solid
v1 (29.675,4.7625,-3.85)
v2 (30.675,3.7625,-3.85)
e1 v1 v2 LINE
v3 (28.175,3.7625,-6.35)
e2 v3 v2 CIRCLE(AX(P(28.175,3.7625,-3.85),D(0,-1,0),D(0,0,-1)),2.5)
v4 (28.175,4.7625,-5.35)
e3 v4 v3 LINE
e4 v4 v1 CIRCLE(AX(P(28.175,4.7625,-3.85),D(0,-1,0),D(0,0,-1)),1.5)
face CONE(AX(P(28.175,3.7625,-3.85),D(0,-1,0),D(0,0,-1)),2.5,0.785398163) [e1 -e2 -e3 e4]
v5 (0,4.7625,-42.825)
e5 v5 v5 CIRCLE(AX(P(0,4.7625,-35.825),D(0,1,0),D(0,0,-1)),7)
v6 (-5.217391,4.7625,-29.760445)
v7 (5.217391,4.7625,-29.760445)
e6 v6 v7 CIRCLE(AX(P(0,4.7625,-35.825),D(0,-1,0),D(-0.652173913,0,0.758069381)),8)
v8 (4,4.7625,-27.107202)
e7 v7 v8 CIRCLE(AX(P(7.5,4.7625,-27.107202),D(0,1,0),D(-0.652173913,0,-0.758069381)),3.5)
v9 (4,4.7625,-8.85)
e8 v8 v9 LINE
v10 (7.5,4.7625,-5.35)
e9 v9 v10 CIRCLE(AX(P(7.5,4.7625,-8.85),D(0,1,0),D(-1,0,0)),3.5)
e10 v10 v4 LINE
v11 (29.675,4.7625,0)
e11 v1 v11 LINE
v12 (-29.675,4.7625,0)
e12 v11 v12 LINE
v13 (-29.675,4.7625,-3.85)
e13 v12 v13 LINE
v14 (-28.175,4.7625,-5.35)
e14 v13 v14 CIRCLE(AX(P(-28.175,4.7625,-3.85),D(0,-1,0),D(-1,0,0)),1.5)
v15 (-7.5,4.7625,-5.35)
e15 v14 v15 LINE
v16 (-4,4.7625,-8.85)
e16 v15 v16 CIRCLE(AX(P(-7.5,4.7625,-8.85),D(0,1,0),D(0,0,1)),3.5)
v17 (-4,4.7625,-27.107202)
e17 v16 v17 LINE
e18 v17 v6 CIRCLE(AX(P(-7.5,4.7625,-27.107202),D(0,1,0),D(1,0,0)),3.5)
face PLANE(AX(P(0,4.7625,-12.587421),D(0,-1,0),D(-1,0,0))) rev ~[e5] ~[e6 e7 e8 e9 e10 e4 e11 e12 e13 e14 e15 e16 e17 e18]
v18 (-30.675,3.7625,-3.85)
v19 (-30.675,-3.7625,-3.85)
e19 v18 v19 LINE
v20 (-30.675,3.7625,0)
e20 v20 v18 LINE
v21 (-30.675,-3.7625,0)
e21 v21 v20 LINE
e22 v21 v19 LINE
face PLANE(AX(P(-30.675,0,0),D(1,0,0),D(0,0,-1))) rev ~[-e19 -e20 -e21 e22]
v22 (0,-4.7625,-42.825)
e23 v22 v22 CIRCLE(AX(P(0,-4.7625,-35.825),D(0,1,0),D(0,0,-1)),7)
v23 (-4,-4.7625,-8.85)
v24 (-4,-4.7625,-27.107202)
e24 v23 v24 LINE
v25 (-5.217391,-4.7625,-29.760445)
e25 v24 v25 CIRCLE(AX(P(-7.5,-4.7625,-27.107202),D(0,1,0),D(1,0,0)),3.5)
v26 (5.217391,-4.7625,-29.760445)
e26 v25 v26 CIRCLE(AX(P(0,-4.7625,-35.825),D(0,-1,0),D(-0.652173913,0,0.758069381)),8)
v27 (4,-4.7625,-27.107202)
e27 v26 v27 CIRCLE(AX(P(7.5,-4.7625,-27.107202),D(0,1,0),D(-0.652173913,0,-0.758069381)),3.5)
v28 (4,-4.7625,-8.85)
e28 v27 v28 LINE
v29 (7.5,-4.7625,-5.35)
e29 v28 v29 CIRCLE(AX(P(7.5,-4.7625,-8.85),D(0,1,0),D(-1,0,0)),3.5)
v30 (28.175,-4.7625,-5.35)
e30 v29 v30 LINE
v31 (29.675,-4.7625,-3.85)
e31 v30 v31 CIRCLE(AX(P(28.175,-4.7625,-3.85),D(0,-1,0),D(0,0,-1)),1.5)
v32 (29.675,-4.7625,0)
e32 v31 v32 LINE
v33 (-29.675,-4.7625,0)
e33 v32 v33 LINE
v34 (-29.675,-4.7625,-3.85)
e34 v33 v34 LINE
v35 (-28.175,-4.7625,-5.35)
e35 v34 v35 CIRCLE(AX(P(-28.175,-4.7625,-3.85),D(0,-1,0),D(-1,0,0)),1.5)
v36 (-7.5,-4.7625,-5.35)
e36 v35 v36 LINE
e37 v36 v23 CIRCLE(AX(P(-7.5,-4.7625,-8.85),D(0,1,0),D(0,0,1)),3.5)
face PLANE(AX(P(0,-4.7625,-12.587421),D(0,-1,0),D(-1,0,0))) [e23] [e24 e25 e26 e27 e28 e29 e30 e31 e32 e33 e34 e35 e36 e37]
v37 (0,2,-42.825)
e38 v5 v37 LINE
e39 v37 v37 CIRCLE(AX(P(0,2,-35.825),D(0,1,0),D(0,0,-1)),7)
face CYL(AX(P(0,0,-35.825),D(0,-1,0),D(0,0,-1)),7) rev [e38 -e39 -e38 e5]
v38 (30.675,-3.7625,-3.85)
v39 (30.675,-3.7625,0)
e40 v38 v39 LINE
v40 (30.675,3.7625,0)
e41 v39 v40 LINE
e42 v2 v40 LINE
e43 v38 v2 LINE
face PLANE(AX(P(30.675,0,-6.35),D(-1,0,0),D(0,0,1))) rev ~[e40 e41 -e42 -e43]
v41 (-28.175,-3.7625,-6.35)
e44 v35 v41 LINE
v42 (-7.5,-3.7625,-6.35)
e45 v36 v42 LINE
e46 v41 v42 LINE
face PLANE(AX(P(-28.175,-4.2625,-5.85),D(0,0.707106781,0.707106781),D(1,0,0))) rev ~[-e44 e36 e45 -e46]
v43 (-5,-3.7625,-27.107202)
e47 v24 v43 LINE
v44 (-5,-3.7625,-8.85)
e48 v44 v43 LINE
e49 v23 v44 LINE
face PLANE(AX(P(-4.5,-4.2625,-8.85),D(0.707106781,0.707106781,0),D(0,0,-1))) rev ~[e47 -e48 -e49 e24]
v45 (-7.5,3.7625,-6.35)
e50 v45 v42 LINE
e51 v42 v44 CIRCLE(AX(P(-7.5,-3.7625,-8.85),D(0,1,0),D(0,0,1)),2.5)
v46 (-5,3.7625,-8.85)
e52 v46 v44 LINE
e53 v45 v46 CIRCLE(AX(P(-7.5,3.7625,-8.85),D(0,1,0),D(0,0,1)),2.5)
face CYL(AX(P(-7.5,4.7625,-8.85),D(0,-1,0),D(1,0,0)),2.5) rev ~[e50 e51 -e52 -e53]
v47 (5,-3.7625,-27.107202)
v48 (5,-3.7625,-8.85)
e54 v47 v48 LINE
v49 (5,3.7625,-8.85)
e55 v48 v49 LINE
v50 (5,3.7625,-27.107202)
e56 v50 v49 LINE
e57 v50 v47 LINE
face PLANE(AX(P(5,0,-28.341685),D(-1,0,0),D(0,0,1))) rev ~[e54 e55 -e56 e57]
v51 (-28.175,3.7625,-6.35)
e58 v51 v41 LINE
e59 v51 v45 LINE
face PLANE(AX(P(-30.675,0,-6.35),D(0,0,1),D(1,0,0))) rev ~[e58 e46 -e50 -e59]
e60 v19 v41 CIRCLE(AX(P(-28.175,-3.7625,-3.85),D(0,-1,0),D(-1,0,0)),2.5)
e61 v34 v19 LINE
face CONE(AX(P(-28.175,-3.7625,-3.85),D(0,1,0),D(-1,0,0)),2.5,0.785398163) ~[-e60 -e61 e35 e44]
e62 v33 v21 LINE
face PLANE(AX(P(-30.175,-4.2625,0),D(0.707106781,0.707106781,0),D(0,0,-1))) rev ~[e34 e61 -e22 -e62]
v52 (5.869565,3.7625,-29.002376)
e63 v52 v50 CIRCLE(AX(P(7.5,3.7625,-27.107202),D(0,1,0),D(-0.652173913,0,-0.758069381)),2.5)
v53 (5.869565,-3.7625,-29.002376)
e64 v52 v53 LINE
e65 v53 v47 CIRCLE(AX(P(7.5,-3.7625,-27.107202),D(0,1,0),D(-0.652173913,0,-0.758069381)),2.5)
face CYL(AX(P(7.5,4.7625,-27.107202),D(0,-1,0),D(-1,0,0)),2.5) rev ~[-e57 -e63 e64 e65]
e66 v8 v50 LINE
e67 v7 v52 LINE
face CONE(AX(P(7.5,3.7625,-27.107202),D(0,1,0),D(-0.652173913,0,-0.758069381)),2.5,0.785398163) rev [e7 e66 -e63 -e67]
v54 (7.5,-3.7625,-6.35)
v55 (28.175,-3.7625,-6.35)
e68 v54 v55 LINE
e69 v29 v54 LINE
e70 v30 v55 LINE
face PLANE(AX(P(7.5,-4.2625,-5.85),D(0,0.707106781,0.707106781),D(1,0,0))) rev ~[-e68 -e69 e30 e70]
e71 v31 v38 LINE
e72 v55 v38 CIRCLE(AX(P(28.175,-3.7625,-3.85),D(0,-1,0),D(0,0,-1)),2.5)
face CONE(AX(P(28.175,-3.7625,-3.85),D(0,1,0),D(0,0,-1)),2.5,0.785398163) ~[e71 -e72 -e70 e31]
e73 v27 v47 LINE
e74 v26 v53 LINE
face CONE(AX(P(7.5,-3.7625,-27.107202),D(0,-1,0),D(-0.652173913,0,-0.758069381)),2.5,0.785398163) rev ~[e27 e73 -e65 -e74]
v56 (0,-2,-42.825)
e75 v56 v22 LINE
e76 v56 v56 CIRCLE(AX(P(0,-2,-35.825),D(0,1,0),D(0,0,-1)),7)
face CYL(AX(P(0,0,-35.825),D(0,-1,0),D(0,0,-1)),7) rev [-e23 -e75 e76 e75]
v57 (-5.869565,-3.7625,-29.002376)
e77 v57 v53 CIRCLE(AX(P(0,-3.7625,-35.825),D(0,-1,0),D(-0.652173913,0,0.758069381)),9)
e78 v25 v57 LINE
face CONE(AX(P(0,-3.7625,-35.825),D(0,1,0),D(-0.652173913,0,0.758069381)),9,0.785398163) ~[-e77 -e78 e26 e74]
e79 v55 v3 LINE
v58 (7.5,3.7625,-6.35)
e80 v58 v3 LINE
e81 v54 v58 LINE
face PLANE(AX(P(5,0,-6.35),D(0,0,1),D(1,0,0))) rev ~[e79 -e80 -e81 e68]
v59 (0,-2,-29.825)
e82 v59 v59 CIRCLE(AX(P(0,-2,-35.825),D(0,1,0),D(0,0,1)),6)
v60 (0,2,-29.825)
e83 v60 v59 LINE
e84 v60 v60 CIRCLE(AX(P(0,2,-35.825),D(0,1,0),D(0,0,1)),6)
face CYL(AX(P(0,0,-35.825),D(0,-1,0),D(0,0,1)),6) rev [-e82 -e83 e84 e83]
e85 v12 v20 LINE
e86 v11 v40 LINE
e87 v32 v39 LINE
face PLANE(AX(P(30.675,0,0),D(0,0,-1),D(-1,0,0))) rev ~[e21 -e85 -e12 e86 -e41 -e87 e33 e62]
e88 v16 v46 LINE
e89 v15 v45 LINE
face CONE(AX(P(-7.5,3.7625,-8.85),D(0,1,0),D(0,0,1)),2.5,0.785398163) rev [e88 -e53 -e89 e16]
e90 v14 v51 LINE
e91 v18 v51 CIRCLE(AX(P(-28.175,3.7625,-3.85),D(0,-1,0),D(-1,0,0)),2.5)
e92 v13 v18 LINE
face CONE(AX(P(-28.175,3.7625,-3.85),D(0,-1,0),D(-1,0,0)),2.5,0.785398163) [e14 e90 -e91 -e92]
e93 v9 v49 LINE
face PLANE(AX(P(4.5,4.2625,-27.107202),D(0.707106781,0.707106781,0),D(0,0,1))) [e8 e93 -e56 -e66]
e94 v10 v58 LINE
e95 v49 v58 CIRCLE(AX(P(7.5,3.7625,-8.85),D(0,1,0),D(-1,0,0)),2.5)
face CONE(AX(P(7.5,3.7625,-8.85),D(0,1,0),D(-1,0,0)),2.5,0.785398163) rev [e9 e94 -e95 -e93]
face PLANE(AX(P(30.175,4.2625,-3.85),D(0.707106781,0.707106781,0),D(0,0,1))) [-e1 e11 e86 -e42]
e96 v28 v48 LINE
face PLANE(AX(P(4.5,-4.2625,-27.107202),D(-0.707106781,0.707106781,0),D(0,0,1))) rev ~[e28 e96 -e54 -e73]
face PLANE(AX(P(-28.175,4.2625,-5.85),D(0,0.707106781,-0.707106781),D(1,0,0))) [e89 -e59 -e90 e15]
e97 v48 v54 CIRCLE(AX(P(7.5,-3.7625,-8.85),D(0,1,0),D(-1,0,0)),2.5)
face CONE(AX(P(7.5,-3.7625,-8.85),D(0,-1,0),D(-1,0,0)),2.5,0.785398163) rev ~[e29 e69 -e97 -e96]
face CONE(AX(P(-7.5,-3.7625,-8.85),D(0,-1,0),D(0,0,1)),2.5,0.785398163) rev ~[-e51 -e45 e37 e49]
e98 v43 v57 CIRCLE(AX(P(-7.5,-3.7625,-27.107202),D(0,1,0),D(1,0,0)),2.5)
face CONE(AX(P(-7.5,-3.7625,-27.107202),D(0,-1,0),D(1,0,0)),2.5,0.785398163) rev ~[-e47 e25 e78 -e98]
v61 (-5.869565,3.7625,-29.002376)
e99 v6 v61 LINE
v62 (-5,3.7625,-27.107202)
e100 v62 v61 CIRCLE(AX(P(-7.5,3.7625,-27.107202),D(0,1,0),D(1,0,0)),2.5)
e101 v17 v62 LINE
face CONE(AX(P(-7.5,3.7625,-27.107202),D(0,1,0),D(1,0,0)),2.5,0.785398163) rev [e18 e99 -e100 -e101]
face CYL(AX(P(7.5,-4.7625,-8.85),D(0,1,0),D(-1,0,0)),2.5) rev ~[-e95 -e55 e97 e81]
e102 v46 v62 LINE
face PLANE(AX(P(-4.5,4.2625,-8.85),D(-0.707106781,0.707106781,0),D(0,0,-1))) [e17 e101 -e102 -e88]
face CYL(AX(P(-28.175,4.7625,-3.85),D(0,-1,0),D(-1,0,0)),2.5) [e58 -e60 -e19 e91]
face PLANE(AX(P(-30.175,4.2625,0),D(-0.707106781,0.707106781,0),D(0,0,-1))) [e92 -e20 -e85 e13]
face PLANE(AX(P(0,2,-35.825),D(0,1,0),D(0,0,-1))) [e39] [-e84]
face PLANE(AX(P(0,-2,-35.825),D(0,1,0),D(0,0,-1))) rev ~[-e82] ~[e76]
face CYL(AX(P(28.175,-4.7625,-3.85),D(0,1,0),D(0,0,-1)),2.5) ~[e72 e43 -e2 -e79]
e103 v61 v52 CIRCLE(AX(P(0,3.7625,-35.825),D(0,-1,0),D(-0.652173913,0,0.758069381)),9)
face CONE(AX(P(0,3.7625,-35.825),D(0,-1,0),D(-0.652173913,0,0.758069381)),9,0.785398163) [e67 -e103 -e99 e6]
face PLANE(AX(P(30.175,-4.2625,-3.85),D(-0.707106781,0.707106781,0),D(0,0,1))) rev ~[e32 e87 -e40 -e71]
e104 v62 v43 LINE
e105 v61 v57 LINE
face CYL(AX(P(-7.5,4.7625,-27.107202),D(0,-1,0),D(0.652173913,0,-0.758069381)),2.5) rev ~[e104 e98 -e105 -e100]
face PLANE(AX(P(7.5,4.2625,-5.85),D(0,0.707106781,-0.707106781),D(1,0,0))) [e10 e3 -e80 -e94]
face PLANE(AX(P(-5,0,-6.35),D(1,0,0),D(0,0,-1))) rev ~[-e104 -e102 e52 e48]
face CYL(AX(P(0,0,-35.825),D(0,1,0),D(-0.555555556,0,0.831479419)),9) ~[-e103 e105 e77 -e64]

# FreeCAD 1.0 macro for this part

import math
import FreeCAD as App
import Part
import Sketcher

V = App.Vector
Q = App.Units.Quantity


def edges_at(feature, points):
    """Names of the edges that pass closest to the given points."""
    edges = feature.Shape.Edges
    near = lambda p: min(range(len(edges)), key=lambda i: edges[i].distToShape(Part.Vertex(*p))[0])
    return sorted({f"Edge{near(p) + 1}" for p in points})

doc = App.newDocument("Part")
body = doc.addObject("PartDesign::Body", "Body")

# Sketch on XZ plane
sketch1 = body.newObject("Sketcher::SketchObject", "Sketch")
sketch1.AttachmentSupport = (doc.getObject("XZ_Plane"), [""])
sketch1.MapMode = "FlatFace"
sketch1.addGeometry(Part.LineSegment(V(-31, -6, 0), V(-31, 0, 0)), False)
sketch1.addGeometry(Part.LineSegment(V(-31, 0, 0), V(31, 0, 0)), False)
sketch1.addGeometry(Part.LineSegment(V(31, 0, 0), V(31, -6, 0)), False)
sketch1.addGeometry(Part.LineSegment(V(31, -6, 0), V(5, -6, 0)), False)
sketch1.addGeometry(Part.LineSegment(V(5, -6, 0), V(5, -28, 0)), False)
sketch1.addGeometry(Part.ArcOfCircle(Part.Circle(V(0, -36, 0), V(0, 0, 1), 9), math.radians(124), math.radians(416)), False)
sketch1.addGeometry(Part.LineSegment(V(-5, -28, 0), V(-5, -6, 0)), False)
sketch1.addGeometry(Part.LineSegment(V(-5, -6, 0), V(-31, -6, 0)), False)
sketch1.addGeometry(Part.Circle(V(0, -36, 0), V(0, 0, 1), 7), False)
sketch1.addConstraint(Sketcher.Constraint("Coincident", 0, 2, 1, 1))
sketch1.addConstraint(Sketcher.Constraint("Coincident", 1, 2, 2, 1))
sketch1.addConstraint(Sketcher.Constraint("Coincident", 2, 2, 3, 1))
sketch1.addConstraint(Sketcher.Constraint("Coincident", 3, 2, 4, 1))
sketch1.addConstraint(Sketcher.Constraint("Coincident", 4, 2, 5, 2))
sketch1.addConstraint(Sketcher.Constraint("Coincident", 5, 1, 6, 1))
sketch1.addConstraint(Sketcher.Constraint("Coincident", 6, 2, 7, 1))
sketch1.addConstraint(Sketcher.Constraint("Coincident", 7, 2, 0, 1))
sketch1.addConstraint(Sketcher.Constraint("Vertical", 0))
sketch1.addConstraint(Sketcher.Constraint("Horizontal", 1))
sketch1.addConstraint(Sketcher.Constraint("Vertical", 2))
sketch1.addConstraint(Sketcher.Constraint("Horizontal", 3))
sketch1.addConstraint(Sketcher.Constraint("Vertical", 4))
sketch1.addConstraint(Sketcher.Constraint("Vertical", 6))
sketch1.addConstraint(Sketcher.Constraint("Horizontal", 7))
sketch1.addConstraint(Sketcher.Constraint("Coincident", 8, 3, 5, 3))
sketch1.addConstraint(Sketcher.Constraint("Symmetric", 0, 2, 1, 2, -1, 1))
sketch1.addConstraint(Sketcher.Constraint("Symmetric", 4, 2, 5, 1, -2))
sketch1.addConstraint(Sketcher.Constraint("Horizontal", 3, 2, 6, 2))
sketch1.addConstraint(Sketcher.Constraint("Diameter", 8, Q("14 mm")))
sketch1.addConstraint(Sketcher.Constraint("Radius", 5, Q("9 mm")))
sketch1.addConstraint(Sketcher.Constraint("DistanceX", -1, 1, 3, 2, Q("5 mm")))
sketch1.addConstraint(Sketcher.Constraint("DistanceX", 1, 1, 1, 2, Q("61.35 mm")))
sketch1.addConstraint(Sketcher.Constraint("DistanceY", 0, 1, 0, 2, Q("6.35 mm")))
sketch1.addConstraint(Sketcher.Constraint("DistanceY", 5, 3, -1, 1, Q("35.825 mm")))
pad1 = body.newObject("PartDesign::Pad", "Pad")
pad1.Profile = sketch1
pad1.Length = 9.525
pad1.Midplane = True
doc.recompute()

fillet = body.newObject("PartDesign::Fillet", "Fillet")
fillet.Base = (pad1, edges_at(pad1, [
    (-30.675, 0, -6.35),
    (-5, 0, -6.35),
    (-5, 0, -28.342),
    (5, 0, -28.342),
    (5, 0, -6.35),
    (30.675, 0, -6.35),
]))
fillet.Radius = 2.5
doc.recompute()

chamfer = body.newObject("PartDesign::Chamfer", "Chamfer")
chamfer.Base = (fillet, edges_at(fillet, [
    (30.675, -4.763, -1.925),
    (-5, -4.763, -17.979),
    (-5, 4.763, -17.979),
    (0, -4.763, -44.825),
    (0, 4.763, -44.825),
    (5, -4.763, -17.979),
    (5, 4.763, -17.979),
    (17.837, -4.763, -6.35),
    (17.837, 4.763, -6.35),
    (-30.675, -4.763, -1.925),
    (-17.837, -4.763, -6.35),
    (-29.943, -4.763, -5.618),
    (29.943, -4.763, -5.618),
    (-17.837, 4.763, -6.35),
    (-30.675, 4.763, -1.925),
    (-29.943, 4.763, -5.618),
    (29.943, 4.763, -5.618),
    (-5.228, -4.763, -28.15),
    (-5.228, 4.763, -28.15),
    (5.228, -4.763, -28.15),
    (5.228, 4.763, -28.15),
    (5.732, -4.763, -7.082),
    (5.732, 4.763, -7.082),
    (-5.732, -4.763, -7.082),
    (-5.732, 4.763, -7.082),
    (30.675, 4.763, -1.925),
]))
chamfer.Size = 1

# Sketch on XZ plane
sketch2 = body.newObject("Sketcher::SketchObject", "Sketch001")
sketch2.AttachmentSupport = (doc.getObject("XZ_Plane"), [""])
sketch2.MapMode = "FlatFace"
sketch2.addGeometry(Part.Circle(V(0, -36, 0), V(0, 0, 1), 7), False)
sketch2.addGeometry(Part.Circle(V(0, -36, 0), V(0, 0, 1), 6), False)
sketch2.addConstraint(Sketcher.Constraint("Coincident", 1, 3, 0, 3))
sketch2.addConstraint(Sketcher.Constraint("PointOnObject", 0, 3, -2))
sketch2.addConstraint(Sketcher.Constraint("Diameter", 0, Q("14 mm")))
sketch2.addConstraint(Sketcher.Constraint("Diameter", 1, Q("12 mm")))
sketch2.addConstraint(Sketcher.Constraint("DistanceY", 0, 3, -1, 1, Q("35.825 mm")))
pad2 = body.newObject("PartDesign::Pad", "Pad001")
pad2.Profile = sketch2
pad2.Length = 4
pad2.Midplane = True

doc.recompute()
